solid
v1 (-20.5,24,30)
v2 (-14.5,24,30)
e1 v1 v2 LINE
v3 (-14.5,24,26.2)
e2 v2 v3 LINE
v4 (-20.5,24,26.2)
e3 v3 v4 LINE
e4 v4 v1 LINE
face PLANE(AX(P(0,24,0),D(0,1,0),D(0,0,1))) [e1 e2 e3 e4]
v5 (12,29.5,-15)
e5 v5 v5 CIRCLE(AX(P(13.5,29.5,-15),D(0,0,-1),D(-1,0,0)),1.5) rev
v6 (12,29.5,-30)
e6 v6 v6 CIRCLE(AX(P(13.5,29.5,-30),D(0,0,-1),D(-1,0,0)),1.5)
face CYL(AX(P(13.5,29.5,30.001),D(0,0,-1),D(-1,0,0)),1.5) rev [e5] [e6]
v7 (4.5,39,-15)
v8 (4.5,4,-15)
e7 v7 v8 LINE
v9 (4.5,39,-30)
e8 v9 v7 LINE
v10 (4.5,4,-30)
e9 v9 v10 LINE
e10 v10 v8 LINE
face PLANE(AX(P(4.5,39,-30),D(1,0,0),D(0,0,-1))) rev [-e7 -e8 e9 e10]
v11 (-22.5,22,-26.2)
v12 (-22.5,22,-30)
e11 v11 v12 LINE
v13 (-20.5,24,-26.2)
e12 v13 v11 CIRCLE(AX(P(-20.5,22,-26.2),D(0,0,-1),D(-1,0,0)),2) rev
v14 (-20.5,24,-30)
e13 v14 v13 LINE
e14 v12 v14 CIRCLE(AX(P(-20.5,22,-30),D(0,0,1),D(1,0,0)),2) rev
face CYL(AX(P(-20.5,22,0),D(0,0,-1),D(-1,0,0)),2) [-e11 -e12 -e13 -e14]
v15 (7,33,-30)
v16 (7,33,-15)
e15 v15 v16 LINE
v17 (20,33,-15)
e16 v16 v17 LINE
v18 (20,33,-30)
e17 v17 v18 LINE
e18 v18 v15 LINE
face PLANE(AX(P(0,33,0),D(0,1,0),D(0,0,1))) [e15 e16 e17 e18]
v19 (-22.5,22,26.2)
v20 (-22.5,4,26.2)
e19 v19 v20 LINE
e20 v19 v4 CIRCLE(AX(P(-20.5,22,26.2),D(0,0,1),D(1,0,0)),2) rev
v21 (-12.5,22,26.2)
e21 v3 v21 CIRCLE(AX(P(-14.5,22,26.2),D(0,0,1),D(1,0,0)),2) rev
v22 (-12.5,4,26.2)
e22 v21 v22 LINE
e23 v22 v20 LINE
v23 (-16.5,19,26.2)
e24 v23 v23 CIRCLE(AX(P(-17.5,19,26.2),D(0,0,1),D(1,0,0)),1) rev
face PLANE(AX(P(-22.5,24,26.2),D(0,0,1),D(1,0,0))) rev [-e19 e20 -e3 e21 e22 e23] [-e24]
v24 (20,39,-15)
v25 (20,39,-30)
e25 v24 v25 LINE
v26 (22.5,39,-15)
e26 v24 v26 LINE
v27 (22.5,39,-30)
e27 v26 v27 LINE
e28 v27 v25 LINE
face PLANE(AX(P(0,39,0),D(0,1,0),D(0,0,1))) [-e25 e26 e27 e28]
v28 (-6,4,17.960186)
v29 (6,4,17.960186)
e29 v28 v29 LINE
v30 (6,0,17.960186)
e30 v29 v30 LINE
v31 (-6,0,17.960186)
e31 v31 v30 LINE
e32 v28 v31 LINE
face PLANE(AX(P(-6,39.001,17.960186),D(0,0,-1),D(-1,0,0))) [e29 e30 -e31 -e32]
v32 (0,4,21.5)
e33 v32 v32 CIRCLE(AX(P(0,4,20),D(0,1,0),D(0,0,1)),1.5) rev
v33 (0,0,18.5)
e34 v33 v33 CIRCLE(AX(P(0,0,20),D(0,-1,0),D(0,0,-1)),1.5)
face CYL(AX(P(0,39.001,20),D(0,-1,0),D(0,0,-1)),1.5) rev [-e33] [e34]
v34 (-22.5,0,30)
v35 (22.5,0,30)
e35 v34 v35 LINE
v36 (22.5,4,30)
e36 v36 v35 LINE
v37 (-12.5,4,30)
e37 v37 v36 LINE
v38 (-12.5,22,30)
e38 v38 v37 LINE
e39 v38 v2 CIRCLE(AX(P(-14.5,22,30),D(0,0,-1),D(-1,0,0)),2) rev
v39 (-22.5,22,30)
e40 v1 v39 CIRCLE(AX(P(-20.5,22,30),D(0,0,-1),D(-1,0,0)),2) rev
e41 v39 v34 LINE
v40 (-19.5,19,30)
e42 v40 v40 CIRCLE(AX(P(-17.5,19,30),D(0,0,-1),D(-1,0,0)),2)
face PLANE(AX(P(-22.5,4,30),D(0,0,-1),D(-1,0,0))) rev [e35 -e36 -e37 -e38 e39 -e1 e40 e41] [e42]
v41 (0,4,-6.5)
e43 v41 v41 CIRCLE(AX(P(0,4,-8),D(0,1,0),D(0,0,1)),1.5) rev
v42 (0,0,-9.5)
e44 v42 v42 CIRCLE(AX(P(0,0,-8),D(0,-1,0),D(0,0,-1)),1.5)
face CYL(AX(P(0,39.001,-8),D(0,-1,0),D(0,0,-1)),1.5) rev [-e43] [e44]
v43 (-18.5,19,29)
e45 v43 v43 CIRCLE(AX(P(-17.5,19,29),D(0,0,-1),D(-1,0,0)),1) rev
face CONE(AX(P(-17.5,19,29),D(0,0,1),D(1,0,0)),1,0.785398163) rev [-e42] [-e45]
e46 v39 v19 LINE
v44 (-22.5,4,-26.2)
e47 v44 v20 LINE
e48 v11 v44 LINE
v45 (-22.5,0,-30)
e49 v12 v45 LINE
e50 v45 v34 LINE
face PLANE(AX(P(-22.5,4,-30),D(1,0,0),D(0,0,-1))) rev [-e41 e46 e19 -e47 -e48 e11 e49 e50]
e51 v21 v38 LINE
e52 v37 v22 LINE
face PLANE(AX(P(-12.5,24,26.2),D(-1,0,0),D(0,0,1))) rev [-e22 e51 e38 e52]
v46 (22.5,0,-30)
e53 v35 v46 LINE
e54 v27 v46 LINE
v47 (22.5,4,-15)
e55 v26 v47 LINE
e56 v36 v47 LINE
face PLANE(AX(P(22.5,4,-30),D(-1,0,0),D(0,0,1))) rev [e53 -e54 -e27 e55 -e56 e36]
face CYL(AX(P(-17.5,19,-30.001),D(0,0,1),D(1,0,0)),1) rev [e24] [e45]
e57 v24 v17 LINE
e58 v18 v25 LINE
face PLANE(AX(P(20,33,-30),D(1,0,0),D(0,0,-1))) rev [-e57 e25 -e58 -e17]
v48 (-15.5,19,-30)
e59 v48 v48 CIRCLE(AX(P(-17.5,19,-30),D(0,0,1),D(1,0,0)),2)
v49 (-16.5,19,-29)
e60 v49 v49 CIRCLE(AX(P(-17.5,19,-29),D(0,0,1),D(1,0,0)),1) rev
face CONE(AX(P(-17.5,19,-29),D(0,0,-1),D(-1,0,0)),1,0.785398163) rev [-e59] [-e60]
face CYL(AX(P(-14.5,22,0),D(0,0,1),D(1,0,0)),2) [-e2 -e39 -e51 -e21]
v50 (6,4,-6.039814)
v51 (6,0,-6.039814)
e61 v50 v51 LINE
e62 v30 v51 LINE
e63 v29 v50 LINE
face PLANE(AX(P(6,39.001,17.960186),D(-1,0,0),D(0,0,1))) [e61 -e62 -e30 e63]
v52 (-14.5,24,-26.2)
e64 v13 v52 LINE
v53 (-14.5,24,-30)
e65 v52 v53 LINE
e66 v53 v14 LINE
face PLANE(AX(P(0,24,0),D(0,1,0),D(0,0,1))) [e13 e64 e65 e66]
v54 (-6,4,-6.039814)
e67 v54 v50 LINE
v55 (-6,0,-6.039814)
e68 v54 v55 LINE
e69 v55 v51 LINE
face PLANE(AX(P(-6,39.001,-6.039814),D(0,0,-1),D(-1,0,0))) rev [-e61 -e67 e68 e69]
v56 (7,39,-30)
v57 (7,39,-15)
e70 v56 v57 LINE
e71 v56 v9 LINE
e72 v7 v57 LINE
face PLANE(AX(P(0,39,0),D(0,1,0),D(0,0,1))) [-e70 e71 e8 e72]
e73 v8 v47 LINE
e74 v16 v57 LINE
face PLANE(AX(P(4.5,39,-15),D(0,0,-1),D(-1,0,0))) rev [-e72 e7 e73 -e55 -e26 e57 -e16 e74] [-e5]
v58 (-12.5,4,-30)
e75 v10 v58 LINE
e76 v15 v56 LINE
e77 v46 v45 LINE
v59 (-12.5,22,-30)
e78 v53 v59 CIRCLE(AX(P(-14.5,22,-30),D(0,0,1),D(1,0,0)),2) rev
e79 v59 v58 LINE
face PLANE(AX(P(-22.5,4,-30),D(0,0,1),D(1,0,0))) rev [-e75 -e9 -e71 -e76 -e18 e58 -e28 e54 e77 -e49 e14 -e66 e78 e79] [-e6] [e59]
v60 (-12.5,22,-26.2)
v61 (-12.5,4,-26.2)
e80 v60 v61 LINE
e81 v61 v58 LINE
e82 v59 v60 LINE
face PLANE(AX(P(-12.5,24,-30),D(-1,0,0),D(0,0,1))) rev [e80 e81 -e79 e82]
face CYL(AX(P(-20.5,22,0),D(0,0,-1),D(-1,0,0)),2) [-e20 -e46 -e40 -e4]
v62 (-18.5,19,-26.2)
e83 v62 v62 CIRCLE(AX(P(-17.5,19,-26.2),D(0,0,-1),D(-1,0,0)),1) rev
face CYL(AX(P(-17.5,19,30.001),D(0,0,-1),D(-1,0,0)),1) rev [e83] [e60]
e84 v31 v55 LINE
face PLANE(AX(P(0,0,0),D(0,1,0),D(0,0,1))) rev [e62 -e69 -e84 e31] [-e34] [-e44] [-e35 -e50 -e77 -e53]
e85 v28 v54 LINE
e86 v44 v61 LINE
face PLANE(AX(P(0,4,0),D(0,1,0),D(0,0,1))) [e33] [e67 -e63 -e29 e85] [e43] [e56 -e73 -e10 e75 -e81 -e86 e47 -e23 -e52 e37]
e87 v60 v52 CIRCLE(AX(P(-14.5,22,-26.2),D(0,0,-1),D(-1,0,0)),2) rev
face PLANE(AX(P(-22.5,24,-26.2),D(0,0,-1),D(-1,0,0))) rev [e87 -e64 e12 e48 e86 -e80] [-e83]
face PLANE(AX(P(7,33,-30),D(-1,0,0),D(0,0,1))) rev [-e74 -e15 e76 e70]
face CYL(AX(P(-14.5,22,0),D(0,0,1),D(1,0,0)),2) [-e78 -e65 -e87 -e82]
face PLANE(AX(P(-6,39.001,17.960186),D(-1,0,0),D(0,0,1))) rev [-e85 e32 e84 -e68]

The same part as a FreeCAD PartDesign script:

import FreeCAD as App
import Part
import Sketcher

V = App.Vector


def edges_at(feature, points):
    """Names of the edges that pass closest to the given points."""
    edges = feature.Shape.Edges
    near = lambda p: min(range(len(edges)), key=lambda i: edges[i].distToShape(Part.Vertex(*p))[0])
    return sorted({f"Edge{near(p) + 1}" for p in points})

doc = App.newDocument("Part")
body = doc.addObject("PartDesign::Body", "Body")

sketch1 = body.newObject("Sketcher::SketchObject", "Sketch")
sketch1.AttachmentSupport = (doc.getObject("XZ_Plane"), [""])
sketch1.MapMode = "FlatFace"
sketch1.addGeometry([
    Part.LineSegment(V(-22, -30, 0), V(-22, 30, 0)),
    Part.LineSegment(V(-22, 30, 0), V(22, 30, 0)),
    Part.LineSegment(V(22, 30, 0), V(22, -30, 0)),
    Part.LineSegment(V(22, -30, 0), V(-22, -30, 0)),
], False)
sketch1.addConstraint([
    Sketcher.Constraint("Coincident", 0, 2, 1, 1),
    Sketcher.Constraint("Coincident", 1, 2, 2, 1),
    Sketcher.Constraint("Coincident", 2, 2, 3, 1),
    Sketcher.Constraint("Coincident", 3, 2, 0, 1),
    Sketcher.Constraint("Vertical", 0),
    Sketcher.Constraint("Horizontal", 1),
    Sketcher.Constraint("Vertical", 2),
    Sketcher.Constraint("Horizontal", 3),
    Sketcher.Constraint("Symmetric", 0, 2, 2, 2, -1, 1),
    Sketcher.Constraint("DistanceX", 1, 1, 1, 2, 45.0),
    Sketcher.Constraint("DistanceY", 0, 1, 0, 2, 60.0),
])
pad1 = body.newObject("PartDesign::Pad", "Pad")
pad1.Profile = sketch1
pad1.Length = 4
pad1.Reversed = True

sketch2 = body.newObject("Sketcher::SketchObject", "Sketch001")
sketch2.AttachmentSupport = (doc.getObject("XZ_Plane"), [""])
sketch2.MapMode = "FlatFace"
sketch2.AttachmentOffset = App.Placement(V(0, 0, -4), App.Rotation())
sketch2.addGeometry([
    Part.LineSegment(V(-22.5, -30, 0), V(-22.5, -26.2, 0)),
    Part.LineSegment(V(-22.5, -26.2, 0), V(-12.5, -26.2, 0)),
    Part.LineSegment(V(-12.5, -26.2, 0), V(-12.5, -30, 0)),
    Part.LineSegment(V(-12.5, -30, 0), V(-22.5, -30, 0)),
    Part.LineSegment(V(-22.5, 26.2, 0), V(-22.5, 30, 0)),
    Part.LineSegment(V(-22.5, 30, 0), V(-12.5, 30, 0)),
    Part.LineSegment(V(-12.5, 30, 0), V(-12.5, 26.2, 0)),
    Part.LineSegment(V(-12.5, 26.2, 0), V(-22.5, 26.2, 0)),
], False)
sketch2.addConstraint([
    Sketcher.Constraint("Coincident", 0, 2, 1, 1),
    Sketcher.Constraint("Coincident", 1, 2, 2, 1),
    Sketcher.Constraint("Coincident", 2, 2, 3, 1),
    Sketcher.Constraint("Coincident", 3, 2, 0, 1),
    Sketcher.Constraint("Coincident", 4, 2, 5, 1),
    Sketcher.Constraint("Coincident", 5, 2, 6, 1),
    Sketcher.Constraint("Coincident", 6, 2, 7, 1),
    Sketcher.Constraint("Coincident", 7, 2, 4, 1),
    Sketcher.Constraint("Vertical", 0),
    Sketcher.Constraint("Horizontal", 1),
    Sketcher.Constraint("Vertical", 2),
    Sketcher.Constraint("Horizontal", 3),
    Sketcher.Constraint("Vertical", 4),
    Sketcher.Constraint("Horizontal", 5),
    Sketcher.Constraint("Vertical", 6),
    Sketcher.Constraint("Horizontal", 7),
    Sketcher.Constraint("Symmetric", 3, 2, 4, 2, -1),
    Sketcher.Constraint("Symmetric", 1, 2, 6, 2, -1),
    Sketcher.Constraint("DistanceX", 1, 1, 1, 2, 10.0),
    Sketcher.Constraint("DistanceY", 0, 1, 0, 2, 3.8),
    Sketcher.Constraint("DistanceY", 2, 2, -1, 1, 30.0),
    Sketcher.Constraint("DistanceX", 0, 2, -1, 1, 22.5),
])
pad2 = body.newObject("PartDesign::Pad", "Pad001")
pad2.Profile = sketch2
pad2.Length = 20
pad2.Reversed = True

sketch3 = body.newObject("Sketcher::SketchObject", "Sketch002")
sketch3.AttachmentSupport = (doc.getObject("XY_Plane"), [""])
sketch3.MapMode = "FlatFace"
sketch3.AttachmentOffset = App.Placement(V(0, 0, 30), App.Rotation())
sketch3.addGeometry(Part.Circle(V(-17.5, 19, 0), V(0, 0, 1), 1), False)
sketch3.addConstraint([
    Sketcher.Constraint("Diameter", 0, 2.0),
    Sketcher.Constraint("DistanceY", -1, 1, 0, 3, 19.0),
    Sketcher.Constraint("DistanceX", 0, 3, -1, 1, 17.5),
])
pocket1 = body.newObject("PartDesign::Pocket", "Pocket")
pocket1.Profile = sketch3
pocket1.Type = "UpToFirst"

sketch4 = body.newObject("Sketcher::SketchObject", "Sketch003")
sketch4.AttachmentSupport = (doc.getObject("XY_Plane"), [""])
sketch4.MapMode = "FlatFace"
sketch4.AttachmentOffset = App.Placement(V(0, 0, -30), App.Rotation())
sketch4.addGeometry(Part.Circle(V(-17.5, 19, 0), V(0, 0, 1), 1), False)
sketch4.addConstraint([
    Sketcher.Constraint("Diameter", 0, 2.0),
    Sketcher.Constraint("DistanceY", -1, 1, 0, 3, 19.0),
    Sketcher.Constraint("DistanceX", 0, 3, -1, 1, 17.5),
])
pocket2 = body.newObject("PartDesign::Pocket", "Pocket001")
pocket2.Profile = sketch4
pocket2.Type = "UpToFirst"
pocket2.Reversed = True

sketch5 = body.newObject("Sketcher::SketchObject", "Sketch004")
sketch5.AttachmentSupport = (doc.getObject("XZ_Plane"), [""])
sketch5.MapMode = "FlatFace"
sketch5.AttachmentOffset = App.Placement(V(0, 0, -4), App.Rotation())
sketch5.addGeometry([
    Part.LineSegment(V(4, -30, 0), V(4, -15, 0)),
    Part.LineSegment(V(4, -15, 0), V(22, -15, 0)),
    Part.LineSegment(V(22, -15, 0), V(22, -30, 0)),
    Part.LineSegment(V(22, -30, 0), V(4, -30, 0)),
], False)
sketch5.addConstraint([
    Sketcher.Constraint("Coincident", 0, 2, 1, 1),
    Sketcher.Constraint("Coincident", 1, 2, 2, 1),
    Sketcher.Constraint("Coincident", 2, 2, 3, 1),
    Sketcher.Constraint("Coincident", 3, 2, 0, 1),
    Sketcher.Constraint("Vertical", 0),
    Sketcher.Constraint("Horizontal", 1),
    Sketcher.Constraint("Vertical", 2),
    Sketcher.Constraint("Horizontal", 3),
    Sketcher.Constraint("DistanceX", 1, 1, 1, 2, 18.0),
    Sketcher.Constraint("DistanceY", 0, 1, 0, 2, 15.0),
    Sketcher.Constraint("DistanceY", 0, 2, -1, 1, 15.0),
    Sketcher.Constraint("DistanceX", -1, 1, 0, 2, 4.5),
])
pad3 = body.newObject("PartDesign::Pad", "Pad002")
pad3.Profile = sketch5
pad3.Length = 35
pad3.Reversed = True

sketch6 = body.newObject("Sketcher::SketchObject", "Sketch005")
sketch6.AttachmentSupport = (doc.getObject("XZ_Plane"), [""])
sketch6.MapMode = "FlatFace"
sketch6.AttachmentOffset = App.Placement(V(0, 0, -39), App.Rotation())
sketch6.addGeometry([
    Part.LineSegment(V(7, -30, 0), V(7, -10, 0)),
    Part.LineSegment(V(7, -10, 0), V(20, -10, 0)),
    Part.LineSegment(V(20, -10, 0), V(20, -30, 0)),
    Part.LineSegment(V(20, -30, 0), V(7, -30, 0)),
], False)
sketch6.addConstraint([
    Sketcher.Constraint("Coincident", 0, 2, 1, 1),
    Sketcher.Constraint("Coincident", 1, 2, 2, 1),
    Sketcher.Constraint("Coincident", 2, 2, 3, 1),
    Sketcher.Constraint("Coincident", 3, 2, 0, 1),
    Sketcher.Constraint("Vertical", 0),
    Sketcher.Constraint("Horizontal", 1),
    Sketcher.Constraint("Vertical", 2),
    Sketcher.Constraint("Horizontal", 3),
    Sketcher.Constraint("DistanceX", 1, 1, 1, 2, 13.0),
    Sketcher.Constraint("DistanceY", 0, 1, 0, 2, 20.0),
    Sketcher.Constraint("DistanceX", -1, 1, 0, 2, 7.0),
    Sketcher.Constraint("DistanceY", 0, 2, -1, 1, 10.0),
])
pocket3 = body.newObject("PartDesign::Pocket", "Pocket002")
pocket3.Profile = sketch6
pocket3.Length = 6
pocket3.Reversed = True

sketch7 = body.newObject("Sketcher::SketchObject", "Sketch006")
sketch7.AttachmentSupport = (doc.getObject("XY_Plane"), [""])
sketch7.MapMode = "FlatFace"
sketch7.AttachmentOffset = App.Placement(V(0, 0, -30), App.Rotation())
sketch7.addGeometry(Part.Circle(V(13.5, 29.5, 0), V(0, 0, 1), 1.5), False)
sketch7.addConstraint([
    Sketcher.Constraint("Diameter", 0, 3.0),
    Sketcher.Constraint("DistanceX", -1, 1, 0, 3, 13.5),
    Sketcher.Constraint("DistanceY", -1, 1, 0, 3, 29.5),
])
pocket4 = body.newObject("PartDesign::Pocket", "Pocket003")
pocket4.Profile = sketch7
pocket4.Type = "UpToFirst"
pocket4.Reversed = True
doc.recompute()

fillet = body.newObject("PartDesign::Fillet", "Fillet")
fillet.Base = (pocket4, edges_at(pocket4, [
    (-12.5, 24, -28.1),
    (-22.5, 24, -28.1),
    (-12.5, 24, 28.1),
    (-22.5, 24, 28.1),
]))
fillet.Radius = 2
doc.recompute()

chamfer = body.newObject("PartDesign::Chamfer", "Chamfer")
chamfer.Base = (fillet, edges_at(fillet, [(-18.5, 19, -30)]))
chamfer.Size = 1
doc.recompute()

chamfer2 = body.newObject("PartDesign::Chamfer", "Chamfer001")
chamfer2.Base = (chamfer, edges_at(chamfer, [(-18.5, 19, 30)]))
chamfer2.Size = 1

sketch8 = body.newObject("Sketcher::SketchObject", "Sketch007")
sketch8.AttachmentSupport = (doc.getObject("XZ_Plane"), [""])
sketch8.MapMode = "FlatFace"
sketch8.addGeometry(Part.Circle(V(0, -8, 0), V(0, 0, 1), 1.5), False)
sketch8.addConstraint([
    Sketcher.Constraint("PointOnObject", 0, 3, -2),
    Sketcher.Constraint("Diameter", 0, 3.0),
    Sketcher.Constraint("DistanceY", 0, 3, -1, 1, 8.0),
])
pocket5 = body.newObject("PartDesign::Pocket", "Pocket004")
pocket5.Profile = sketch8
pocket5.Type = "UpToFirst"

sketch9 = body.newObject("Sketcher::SketchObject", "Sketch008")
sketch9.AttachmentSupport = (doc.getObject("XZ_Plane"), [""])
sketch9.MapMode = "FlatFace"
sketch9.addGeometry(Part.Circle(V(0, 20, 0), V(0, 0, 1), 1.5), False)
sketch9.addConstraint([
    Sketcher.Constraint("PointOnObject", 0, 3, -2),
    Sketcher.Constraint("Diameter", 0, 3.0),
    Sketcher.Constraint("DistanceY", -1, 1, 0, 3, 20.0),
])
pocket6 = body.newObject("PartDesign::Pocket", "Pocket005")
pocket6.Profile = sketch9
pocket6.Type = "UpToFirst"

sketch10 = body.newObject("Sketcher::SketchObject", "Sketch009")
sketch10.AttachmentSupport = (doc.getObject("XZ_Plane"), [""])
sketch10.MapMode = "FlatFace"
sketch10.addGeometry([
    Part.LineSegment(V(-6, 18, 0), V(-6, -6, 0)),
    Part.LineSegment(V(-6, -6, 0), V(6, -6, 0)),
    Part.LineSegment(V(6, -6, 0), V(6, 18, 0)),
    Part.LineSegment(V(6, 18, 0), V(-6, 18, 0)),
], False)
sketch10.addConstraint([
    Sketcher.Constraint("Coincident", 0, 2, 1, 1),
    Sketcher.Constraint("Coincident", 1, 2, 2, 1),
    Sketcher.Constraint("Coincident", 2, 2, 3, 1),
    Sketcher.Constraint("Coincident", 3, 2, 0, 1),
    Sketcher.Constraint("Vertical", 0),
    Sketcher.Constraint("Horizontal", 1),
    Sketcher.Constraint("Vertical", 2),
    Sketcher.Constraint("Horizontal", 3),
    Sketcher.Constraint("DistanceX", 1, 1, 1, 2, 12.0),
    Sketcher.Constraint("DistanceY", 0, 2, 0, 1, 24.0),
    Sketcher.Constraint("DistanceX", 0, 2, -1, 1, 6.0),
    Sketcher.Constraint("DistanceY", 0, 2, -1, 1, 6.039814),
])
pocket7 = body.newObject("PartDesign::Pocket", "Pocket006")
pocket7.Profile = sketch10
pocket7.Type = "UpToFirst"

doc.recompute()
